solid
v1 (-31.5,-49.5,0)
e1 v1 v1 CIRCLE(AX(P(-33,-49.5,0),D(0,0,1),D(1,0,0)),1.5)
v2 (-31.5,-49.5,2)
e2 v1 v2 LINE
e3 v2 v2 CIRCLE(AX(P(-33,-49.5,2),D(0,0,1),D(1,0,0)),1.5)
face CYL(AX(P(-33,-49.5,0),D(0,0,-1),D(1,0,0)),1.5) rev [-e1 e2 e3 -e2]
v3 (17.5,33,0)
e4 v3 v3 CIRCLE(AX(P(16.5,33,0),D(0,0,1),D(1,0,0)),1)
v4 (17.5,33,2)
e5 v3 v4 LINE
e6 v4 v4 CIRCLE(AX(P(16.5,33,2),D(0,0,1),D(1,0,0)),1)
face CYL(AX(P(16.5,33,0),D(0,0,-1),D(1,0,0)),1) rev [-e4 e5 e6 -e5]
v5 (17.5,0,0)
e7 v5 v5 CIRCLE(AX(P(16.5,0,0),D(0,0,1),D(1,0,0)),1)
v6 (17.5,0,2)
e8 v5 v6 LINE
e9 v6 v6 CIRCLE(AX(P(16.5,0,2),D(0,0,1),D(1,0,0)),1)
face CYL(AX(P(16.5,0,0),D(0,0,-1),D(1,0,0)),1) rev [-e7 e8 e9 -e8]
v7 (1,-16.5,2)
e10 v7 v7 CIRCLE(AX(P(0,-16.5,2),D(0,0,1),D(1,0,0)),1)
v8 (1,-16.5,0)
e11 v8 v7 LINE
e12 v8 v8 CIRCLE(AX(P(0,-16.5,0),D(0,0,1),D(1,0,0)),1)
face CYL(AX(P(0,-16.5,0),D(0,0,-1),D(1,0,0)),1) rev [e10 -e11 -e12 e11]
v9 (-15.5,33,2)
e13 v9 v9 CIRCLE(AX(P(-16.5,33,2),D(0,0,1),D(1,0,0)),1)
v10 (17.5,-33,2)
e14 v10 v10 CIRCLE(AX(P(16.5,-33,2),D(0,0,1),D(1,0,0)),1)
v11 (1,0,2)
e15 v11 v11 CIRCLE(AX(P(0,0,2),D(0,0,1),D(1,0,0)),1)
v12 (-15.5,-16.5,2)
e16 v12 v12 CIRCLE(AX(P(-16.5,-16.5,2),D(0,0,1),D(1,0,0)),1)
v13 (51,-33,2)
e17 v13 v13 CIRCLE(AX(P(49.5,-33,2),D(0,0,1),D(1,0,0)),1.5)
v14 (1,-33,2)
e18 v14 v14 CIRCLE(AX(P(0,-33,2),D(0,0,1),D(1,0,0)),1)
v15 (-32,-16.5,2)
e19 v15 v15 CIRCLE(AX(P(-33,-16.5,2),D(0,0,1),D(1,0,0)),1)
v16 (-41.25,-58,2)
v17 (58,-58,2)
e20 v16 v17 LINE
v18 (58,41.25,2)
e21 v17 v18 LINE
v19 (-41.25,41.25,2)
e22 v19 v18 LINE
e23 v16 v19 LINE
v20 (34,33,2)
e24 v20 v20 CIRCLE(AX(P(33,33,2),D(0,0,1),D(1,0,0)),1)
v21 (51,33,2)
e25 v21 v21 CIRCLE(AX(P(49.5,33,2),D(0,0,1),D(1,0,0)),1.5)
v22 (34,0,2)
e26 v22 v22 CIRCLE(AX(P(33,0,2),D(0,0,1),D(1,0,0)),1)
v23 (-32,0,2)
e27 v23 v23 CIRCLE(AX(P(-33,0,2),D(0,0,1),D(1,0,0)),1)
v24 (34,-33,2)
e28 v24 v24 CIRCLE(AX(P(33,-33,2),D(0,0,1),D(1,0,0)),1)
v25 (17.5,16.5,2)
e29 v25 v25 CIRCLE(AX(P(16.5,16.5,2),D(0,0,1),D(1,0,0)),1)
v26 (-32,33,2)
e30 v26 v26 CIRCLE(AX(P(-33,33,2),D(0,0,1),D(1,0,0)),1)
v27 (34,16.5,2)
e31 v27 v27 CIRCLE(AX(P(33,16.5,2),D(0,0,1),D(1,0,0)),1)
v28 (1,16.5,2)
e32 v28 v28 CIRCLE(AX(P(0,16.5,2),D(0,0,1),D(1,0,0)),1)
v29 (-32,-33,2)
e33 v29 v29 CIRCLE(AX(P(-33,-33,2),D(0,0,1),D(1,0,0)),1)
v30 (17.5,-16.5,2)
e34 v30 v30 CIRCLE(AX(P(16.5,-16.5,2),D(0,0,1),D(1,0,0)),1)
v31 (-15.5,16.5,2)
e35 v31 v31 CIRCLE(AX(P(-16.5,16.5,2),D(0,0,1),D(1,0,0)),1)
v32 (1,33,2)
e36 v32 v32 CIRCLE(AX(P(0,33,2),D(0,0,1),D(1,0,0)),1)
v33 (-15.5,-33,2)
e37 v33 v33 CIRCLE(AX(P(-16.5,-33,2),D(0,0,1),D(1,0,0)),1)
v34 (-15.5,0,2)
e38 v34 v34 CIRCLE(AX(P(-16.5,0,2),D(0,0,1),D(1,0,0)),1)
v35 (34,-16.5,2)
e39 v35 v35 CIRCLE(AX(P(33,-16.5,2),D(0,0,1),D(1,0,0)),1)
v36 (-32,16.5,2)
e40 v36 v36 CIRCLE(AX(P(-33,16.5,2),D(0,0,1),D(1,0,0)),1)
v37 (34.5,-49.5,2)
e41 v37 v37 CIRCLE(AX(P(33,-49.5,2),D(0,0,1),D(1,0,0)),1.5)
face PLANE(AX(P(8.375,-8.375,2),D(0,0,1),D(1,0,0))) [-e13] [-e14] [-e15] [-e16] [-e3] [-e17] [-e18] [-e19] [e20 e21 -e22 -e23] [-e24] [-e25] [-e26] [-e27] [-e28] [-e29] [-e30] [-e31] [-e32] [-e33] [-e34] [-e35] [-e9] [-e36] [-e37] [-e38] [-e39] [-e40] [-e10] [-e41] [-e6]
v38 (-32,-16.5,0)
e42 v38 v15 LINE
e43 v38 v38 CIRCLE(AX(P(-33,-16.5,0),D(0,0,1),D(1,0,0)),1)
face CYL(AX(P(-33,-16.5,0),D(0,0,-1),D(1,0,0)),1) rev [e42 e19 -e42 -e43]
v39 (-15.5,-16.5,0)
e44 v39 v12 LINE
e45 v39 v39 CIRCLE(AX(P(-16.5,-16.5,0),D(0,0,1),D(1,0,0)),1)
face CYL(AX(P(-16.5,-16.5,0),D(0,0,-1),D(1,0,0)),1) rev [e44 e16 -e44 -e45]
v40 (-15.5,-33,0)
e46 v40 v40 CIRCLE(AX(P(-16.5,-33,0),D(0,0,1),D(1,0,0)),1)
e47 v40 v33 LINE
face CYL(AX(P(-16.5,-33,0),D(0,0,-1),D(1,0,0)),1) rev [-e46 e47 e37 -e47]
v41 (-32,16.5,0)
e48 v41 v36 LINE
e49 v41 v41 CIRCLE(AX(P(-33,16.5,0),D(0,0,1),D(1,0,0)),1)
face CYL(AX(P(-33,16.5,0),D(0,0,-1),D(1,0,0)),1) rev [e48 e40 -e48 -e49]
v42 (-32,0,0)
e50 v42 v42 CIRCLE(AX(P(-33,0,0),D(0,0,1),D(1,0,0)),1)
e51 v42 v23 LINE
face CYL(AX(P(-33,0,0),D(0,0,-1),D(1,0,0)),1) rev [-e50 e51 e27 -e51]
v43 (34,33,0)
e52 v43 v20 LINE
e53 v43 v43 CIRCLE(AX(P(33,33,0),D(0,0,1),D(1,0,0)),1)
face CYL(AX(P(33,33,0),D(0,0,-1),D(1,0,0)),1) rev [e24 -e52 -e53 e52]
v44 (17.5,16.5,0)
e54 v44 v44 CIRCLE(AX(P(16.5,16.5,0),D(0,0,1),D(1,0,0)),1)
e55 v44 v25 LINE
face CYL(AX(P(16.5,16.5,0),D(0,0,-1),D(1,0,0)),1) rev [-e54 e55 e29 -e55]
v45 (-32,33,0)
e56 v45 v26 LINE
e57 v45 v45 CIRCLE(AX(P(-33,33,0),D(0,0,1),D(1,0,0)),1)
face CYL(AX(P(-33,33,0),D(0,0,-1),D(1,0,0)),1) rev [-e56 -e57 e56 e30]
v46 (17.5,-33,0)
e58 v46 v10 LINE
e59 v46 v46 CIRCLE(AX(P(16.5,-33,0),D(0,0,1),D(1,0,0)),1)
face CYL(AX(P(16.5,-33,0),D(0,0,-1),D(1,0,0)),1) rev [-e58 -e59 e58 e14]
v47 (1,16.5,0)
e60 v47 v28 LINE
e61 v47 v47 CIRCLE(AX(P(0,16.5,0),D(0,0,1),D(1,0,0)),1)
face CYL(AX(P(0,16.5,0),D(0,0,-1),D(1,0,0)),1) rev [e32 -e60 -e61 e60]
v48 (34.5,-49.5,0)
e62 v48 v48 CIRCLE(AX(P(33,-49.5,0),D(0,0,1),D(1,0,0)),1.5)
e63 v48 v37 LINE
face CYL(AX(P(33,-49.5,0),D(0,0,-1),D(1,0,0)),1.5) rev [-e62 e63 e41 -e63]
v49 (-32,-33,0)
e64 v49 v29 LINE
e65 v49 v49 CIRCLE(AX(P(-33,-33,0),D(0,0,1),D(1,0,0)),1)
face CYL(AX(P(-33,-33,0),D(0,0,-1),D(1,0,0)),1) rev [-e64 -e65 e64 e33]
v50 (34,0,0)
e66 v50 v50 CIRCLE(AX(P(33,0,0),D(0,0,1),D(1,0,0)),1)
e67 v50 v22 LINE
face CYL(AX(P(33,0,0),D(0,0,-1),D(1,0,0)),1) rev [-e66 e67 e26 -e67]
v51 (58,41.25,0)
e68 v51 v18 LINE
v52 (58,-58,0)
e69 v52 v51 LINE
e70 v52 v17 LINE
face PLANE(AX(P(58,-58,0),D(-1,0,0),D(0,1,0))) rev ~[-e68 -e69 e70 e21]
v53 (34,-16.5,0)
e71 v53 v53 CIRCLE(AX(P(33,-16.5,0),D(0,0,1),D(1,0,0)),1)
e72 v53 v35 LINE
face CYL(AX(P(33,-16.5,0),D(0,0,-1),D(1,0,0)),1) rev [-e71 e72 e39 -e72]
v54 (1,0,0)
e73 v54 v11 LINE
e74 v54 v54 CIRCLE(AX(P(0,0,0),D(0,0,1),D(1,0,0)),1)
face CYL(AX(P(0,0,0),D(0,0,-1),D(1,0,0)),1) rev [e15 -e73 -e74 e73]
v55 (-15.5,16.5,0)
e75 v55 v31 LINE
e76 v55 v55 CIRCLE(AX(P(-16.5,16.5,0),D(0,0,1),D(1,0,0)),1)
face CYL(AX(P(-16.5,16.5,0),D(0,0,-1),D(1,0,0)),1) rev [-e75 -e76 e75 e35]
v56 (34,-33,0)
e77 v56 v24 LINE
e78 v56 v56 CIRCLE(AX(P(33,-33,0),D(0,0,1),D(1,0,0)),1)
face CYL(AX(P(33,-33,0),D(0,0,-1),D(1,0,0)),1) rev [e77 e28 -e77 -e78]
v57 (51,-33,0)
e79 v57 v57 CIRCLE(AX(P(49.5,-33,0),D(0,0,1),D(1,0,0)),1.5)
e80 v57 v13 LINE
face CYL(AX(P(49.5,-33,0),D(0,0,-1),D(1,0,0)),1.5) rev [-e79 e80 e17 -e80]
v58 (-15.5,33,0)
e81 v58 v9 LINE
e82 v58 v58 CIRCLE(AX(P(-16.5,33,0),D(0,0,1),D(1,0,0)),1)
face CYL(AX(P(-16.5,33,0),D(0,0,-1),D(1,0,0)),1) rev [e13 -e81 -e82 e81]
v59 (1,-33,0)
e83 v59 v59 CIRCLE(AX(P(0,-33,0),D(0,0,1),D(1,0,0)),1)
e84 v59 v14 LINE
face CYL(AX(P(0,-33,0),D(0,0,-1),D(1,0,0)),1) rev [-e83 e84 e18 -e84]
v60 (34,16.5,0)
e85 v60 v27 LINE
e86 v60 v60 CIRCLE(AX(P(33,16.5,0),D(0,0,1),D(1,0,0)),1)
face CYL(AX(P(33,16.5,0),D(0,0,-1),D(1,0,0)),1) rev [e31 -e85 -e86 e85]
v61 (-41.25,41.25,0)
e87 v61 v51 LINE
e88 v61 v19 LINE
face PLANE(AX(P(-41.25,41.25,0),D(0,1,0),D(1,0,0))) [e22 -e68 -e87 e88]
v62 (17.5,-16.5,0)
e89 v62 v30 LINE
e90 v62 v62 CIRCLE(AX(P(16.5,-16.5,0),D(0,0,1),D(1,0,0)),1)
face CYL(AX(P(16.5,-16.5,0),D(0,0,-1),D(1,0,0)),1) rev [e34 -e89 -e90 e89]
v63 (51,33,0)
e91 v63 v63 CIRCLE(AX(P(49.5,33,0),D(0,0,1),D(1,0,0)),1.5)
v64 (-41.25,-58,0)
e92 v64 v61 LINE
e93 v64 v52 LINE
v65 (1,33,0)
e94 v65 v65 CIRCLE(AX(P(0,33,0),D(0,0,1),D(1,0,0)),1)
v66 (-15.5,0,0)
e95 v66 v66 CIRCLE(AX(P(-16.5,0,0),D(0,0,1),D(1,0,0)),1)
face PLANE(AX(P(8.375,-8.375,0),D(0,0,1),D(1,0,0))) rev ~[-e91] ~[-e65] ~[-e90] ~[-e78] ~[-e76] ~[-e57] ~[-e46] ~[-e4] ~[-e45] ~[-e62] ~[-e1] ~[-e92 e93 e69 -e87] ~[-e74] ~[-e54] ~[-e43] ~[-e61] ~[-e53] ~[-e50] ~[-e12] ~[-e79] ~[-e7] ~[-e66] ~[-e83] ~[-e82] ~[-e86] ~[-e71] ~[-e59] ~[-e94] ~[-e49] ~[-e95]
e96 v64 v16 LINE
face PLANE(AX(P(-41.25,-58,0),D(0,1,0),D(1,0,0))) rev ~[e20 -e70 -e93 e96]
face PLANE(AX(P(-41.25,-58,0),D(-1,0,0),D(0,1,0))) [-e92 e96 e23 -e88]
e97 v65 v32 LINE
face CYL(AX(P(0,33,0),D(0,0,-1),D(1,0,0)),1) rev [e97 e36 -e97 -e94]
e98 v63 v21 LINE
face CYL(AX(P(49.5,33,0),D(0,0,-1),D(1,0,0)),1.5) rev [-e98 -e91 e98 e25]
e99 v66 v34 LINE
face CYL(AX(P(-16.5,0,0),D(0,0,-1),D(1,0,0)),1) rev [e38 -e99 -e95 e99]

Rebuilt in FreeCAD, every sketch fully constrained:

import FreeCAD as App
import Part
import Sketcher
from FreeCAD import Vector
Q = App.Units.Quantity


def add_polygon(sketch, points):
    """Adds a closed chain of lines whose ends are joined by coincident constraints."""
    first, n = sketch.GeometryCount, len(points)
    for a, b in zip(points, points[1:] + points[:1]):
        sketch.addGeometry(Part.LineSegment(App.Vector(*a, 0), App.Vector(*b, 0)), False)
    for i in range(n):
        sketch.addConstraint(Sketcher.Constraint("Coincident", first + i, 2, first + (i + 1) % n, 1))

doc = App.newDocument("Part")
body = doc.addObject("PartDesign::Body", "Body")

sketch1 = body.newObject("Sketcher::SketchObject", "Sketch")
sketch1.AttachmentSupport = (doc.getObject("XY_Plane"), [""])
sketch1.MapMode = "FlatFace"
add_polygon(sketch1, [(-41.2, 41.2), (-41.2, -58), (58, -58), (58, 41.2)])
sketch1.addGeometry(Part.Circle(Vector(-33, -49.5, 0), Vector(0, 0, 1), 1.5), False)
sketch1.addGeometry(Part.Circle(Vector(-33, -33, 0), Vector(0, 0, 1), 1), False)
sketch1.addGeometry(Part.Circle(Vector(-16.5, -33, 0), Vector(0, 0, 1), 1), False)
sketch1.addGeometry(Part.Circle(Vector(0, -33, 0), Vector(0, 0, 1), 1), False)
sketch1.addGeometry(Part.Circle(Vector(-33, -16.5, 0), Vector(0, 0, 1), 1), False)
sketch1.addGeometry(Part.Circle(Vector(-16.5, -16.5, 0), Vector(0, 0, 1), 1), False)
sketch1.addGeometry(Part.Circle(Vector(0, -16.5, 0), Vector(0, 0, 1), 1), False)
sketch1.addGeometry(Part.Circle(Vector(16.5, -33, 0), Vector(0, 0, 1), 1), False)
sketch1.addGeometry(Part.Circle(Vector(33, -49.5, 0), Vector(0, 0, 1), 1.5), False)
sketch1.addGeometry(Part.Circle(Vector(33, -33, 0), Vector(0, 0, 1), 1), False)
sketch1.addGeometry(Part.Circle(Vector(49.5, -33, 0), Vector(0, 0, 1), 1.5), False)
sketch1.addGeometry(Part.Circle(Vector(16.5, -16.5, 0), Vector(0, 0, 1), 1), False)
sketch1.addGeometry(Part.Circle(Vector(33, -16.5, 0), Vector(0, 0, 1), 1), False)
sketch1.addGeometry(Part.Circle(Vector(-33, 0, 0), Vector(0, 0, 1), 1), False)
sketch1.addGeometry(Part.Circle(Vector(-16.5, 0, 0), Vector(0, 0, 1), 1), False)
sketch1.addGeometry(Part.Circle(Vector(0, 0, 0), Vector(0, 0, 1), 1), False)
sketch1.addGeometry(Part.Circle(Vector(-33, 16.5, 0), Vector(0, 0, 1), 1), False)
sketch1.addGeometry(Part.Circle(Vector(-16.5, 16.5, 0), Vector(0, 0, 1), 1), False)
sketch1.addGeometry(Part.Circle(Vector(-33, 33, 0), Vector(0, 0, 1), 1), False)
sketch1.addGeometry(Part.Circle(Vector(-16.5, 33, 0), Vector(0, 0, 1), 1), False)
sketch1.addGeometry(Part.Circle(Vector(0, 16.5, 0), Vector(0, 0, 1), 1), False)
sketch1.addGeometry(Part.Circle(Vector(0, 33, 0), Vector(0, 0, 1), 1), False)
sketch1.addGeometry(Part.Circle(Vector(16.5, 0, 0), Vector(0, 0, 1), 1), False)
sketch1.addGeometry(Part.Circle(Vector(33, 0, 0), Vector(0, 0, 1), 1), False)
sketch1.addGeometry(Part.Circle(Vector(16.5, 16.5, 0), Vector(0, 0, 1), 1), False)
sketch1.addGeometry(Part.Circle(Vector(16.5, 33, 0), Vector(0, 0, 1), 1), False)
sketch1.addGeometry(Part.Circle(Vector(33, 16.5, 0), Vector(0, 0, 1), 1), False)
sketch1.addGeometry(Part.Circle(Vector(33, 33, 0), Vector(0, 0, 1), 1), False)
sketch1.addGeometry(Part.Circle(Vector(49.5, 33, 0), Vector(0, 0, 1), 1.5), False)
sketch1.addConstraint([
    Sketcher.Constraint("Vertical", 0),
    Sketcher.Constraint("Horizontal", 1),
    Sketcher.Constraint("Vertical", 2),
    Sketcher.Constraint("Horizontal", 3),
    Sketcher.Constraint("Coincident", 19, 3, -1, 1),
    Sketcher.Constraint("Equal", 5, 6),
    Sketcher.Constraint("Equal", 6, 7),
    Sketcher.Constraint("Equal", 7, 8),
    Sketcher.Constraint("Equal", 8, 9),
    Sketcher.Constraint("Equal", 9, 10),
    Sketcher.Constraint("Equal", 10, 11),
    Sketcher.Constraint("Equal", 4, 12),
    Sketcher.Constraint("Equal", 11, 13),
    Sketcher.Constraint("Equal", 12, 14),
    Sketcher.Constraint("Equal", 13, 15),
    Sketcher.Constraint("Equal", 15, 16),
    Sketcher.Constraint("Equal", 16, 17),
    Sketcher.Constraint("Equal", 17, 18),
    Sketcher.Constraint("Equal", 18, 19),
    Sketcher.Constraint("Equal", 19, 20),
    Sketcher.Constraint("Equal", 20, 21),
    Sketcher.Constraint("Equal", 21, 22),
    Sketcher.Constraint("Equal", 22, 23),
    Sketcher.Constraint("Equal", 23, 24),
    Sketcher.Constraint("Equal", 24, 25),
    Sketcher.Constraint("Equal", 25, 26),
    Sketcher.Constraint("Equal", 26, 27),
    Sketcher.Constraint("Equal", 27, 28),
    Sketcher.Constraint("Equal", 28, 29),
    Sketcher.Constraint("Equal", 29, 30),
    Sketcher.Constraint("Equal", 30, 31),
    Sketcher.Constraint("Equal", 14, 32),
    Sketcher.Constraint("Symmetric", 16, 3, 20, 3, -1, 1),
    Sketcher.Constraint("Symmetric", 15, 3, 21, 3, -1, 1),
    Sketcher.Constraint("Symmetric", 13, 3, 22, 3, -1, 1),
    Sketcher.Constraint("Symmetric", 11, 3, 23, 3, -1, 1),
    Sketcher.Constraint("Symmetric", 10, 3, 24, 3, -1, 1),
    Sketcher.Constraint("Symmetric", 7, 3, 25, 3, -1, 1),
    Sketcher.Constraint("Symmetric", 18, 3, 26, 3, -1, 1),
    Sketcher.Constraint("Symmetric", 17, 3, 27, 3, -1, 1),
    Sketcher.Constraint("Symmetric", 9, 3, 28, 3, -1, 1),
    Sketcher.Constraint("Symmetric", 6, 3, 29, 3, -1, 1),
    Sketcher.Constraint("Symmetric", 8, 3, 30, 3, -1, 1),
    Sketcher.Constraint("Symmetric", 5, 3, 31, 3, -1, 1),
    Sketcher.Constraint("Symmetric", 6, 3, 11, 3, -2),
    Sketcher.Constraint("Symmetric", 4, 3, 12, 3, -2),
    Sketcher.Constraint("Symmetric", 5, 3, 13, 3, -2),
    Sketcher.Constraint("Symmetric", 9, 3, 15, 3, -2),
    Sketcher.Constraint("Symmetric", 8, 3, 16, 3, -2),
    Sketcher.Constraint("Symmetric", 14, 3, 32, 3, -1),
    Sketcher.Constraint("PointOnObject", 7, 3, -2),
    Sketcher.Constraint("PointOnObject", 10, 3, -2),
    Sketcher.Constraint("PointOnObject", 17, 3, -1),
    Sketcher.Constraint("PointOnObject", 18, 3, -1),
    Sketcher.Constraint("Horizontal", 5, 3, 6, 3),
    Sketcher.Constraint("Horizontal", 6, 3, 7, 3),
    Sketcher.Constraint("Horizontal", 8, 3, 9, 3),
    Sketcher.Constraint("Horizontal", 9, 3, 10, 3),
    Sketcher.Constraint("Horizontal", 13, 3, 14, 3),
    Sketcher.Constraint("Vertical", 4, 3, 5, 3),
    Sketcher.Constraint("Vertical", 5, 3, 8, 3),
    Sketcher.Constraint("Vertical", 6, 3, 9, 3),
    Sketcher.Constraint("Vertical", 8, 3, 17, 3),
    Sketcher.Constraint("Vertical", 9, 3, 18, 3),
    Sketcher.Constraint("Equal", 3, 0),
    Sketcher.Constraint("Diameter", 4, Q("3 mm")),
    Sketcher.Constraint("Diameter", 5, Q("2 mm")),
    Sketcher.Constraint("DistanceX", 4, 3, -1, 1, Q("33 mm")),
    Sketcher.Constraint("DistanceY", 5, 3, -1, 1, Q("33 mm")),
    Sketcher.Constraint("DistanceY", 0, 2, -1, 1, Q("58 mm")),
    Sketcher.Constraint("DistanceX", -1, 1, 1, 2, Q("58 mm")),
    Sketcher.Constraint("DistanceY", 4, 3, 8, 3, Q("33 mm")),
    Sketcher.Constraint("DistanceX", 6, 3, 11, 3, Q("33 mm")),
    Sketcher.Constraint("DistanceX", 11, 3, 14, 3, Q("33 mm")),
    Sketcher.Constraint("DistanceY", 8, 3, 20, 3, Q("33 mm")),
    Sketcher.Constraint("DistanceX", 1, 1, 1, 2, Q("99.25 mm")),
])
pad1 = body.newObject("PartDesign::Pad", "Pad")
pad1.Profile = sketch1
pad1.Length = 2

doc.recompute()
